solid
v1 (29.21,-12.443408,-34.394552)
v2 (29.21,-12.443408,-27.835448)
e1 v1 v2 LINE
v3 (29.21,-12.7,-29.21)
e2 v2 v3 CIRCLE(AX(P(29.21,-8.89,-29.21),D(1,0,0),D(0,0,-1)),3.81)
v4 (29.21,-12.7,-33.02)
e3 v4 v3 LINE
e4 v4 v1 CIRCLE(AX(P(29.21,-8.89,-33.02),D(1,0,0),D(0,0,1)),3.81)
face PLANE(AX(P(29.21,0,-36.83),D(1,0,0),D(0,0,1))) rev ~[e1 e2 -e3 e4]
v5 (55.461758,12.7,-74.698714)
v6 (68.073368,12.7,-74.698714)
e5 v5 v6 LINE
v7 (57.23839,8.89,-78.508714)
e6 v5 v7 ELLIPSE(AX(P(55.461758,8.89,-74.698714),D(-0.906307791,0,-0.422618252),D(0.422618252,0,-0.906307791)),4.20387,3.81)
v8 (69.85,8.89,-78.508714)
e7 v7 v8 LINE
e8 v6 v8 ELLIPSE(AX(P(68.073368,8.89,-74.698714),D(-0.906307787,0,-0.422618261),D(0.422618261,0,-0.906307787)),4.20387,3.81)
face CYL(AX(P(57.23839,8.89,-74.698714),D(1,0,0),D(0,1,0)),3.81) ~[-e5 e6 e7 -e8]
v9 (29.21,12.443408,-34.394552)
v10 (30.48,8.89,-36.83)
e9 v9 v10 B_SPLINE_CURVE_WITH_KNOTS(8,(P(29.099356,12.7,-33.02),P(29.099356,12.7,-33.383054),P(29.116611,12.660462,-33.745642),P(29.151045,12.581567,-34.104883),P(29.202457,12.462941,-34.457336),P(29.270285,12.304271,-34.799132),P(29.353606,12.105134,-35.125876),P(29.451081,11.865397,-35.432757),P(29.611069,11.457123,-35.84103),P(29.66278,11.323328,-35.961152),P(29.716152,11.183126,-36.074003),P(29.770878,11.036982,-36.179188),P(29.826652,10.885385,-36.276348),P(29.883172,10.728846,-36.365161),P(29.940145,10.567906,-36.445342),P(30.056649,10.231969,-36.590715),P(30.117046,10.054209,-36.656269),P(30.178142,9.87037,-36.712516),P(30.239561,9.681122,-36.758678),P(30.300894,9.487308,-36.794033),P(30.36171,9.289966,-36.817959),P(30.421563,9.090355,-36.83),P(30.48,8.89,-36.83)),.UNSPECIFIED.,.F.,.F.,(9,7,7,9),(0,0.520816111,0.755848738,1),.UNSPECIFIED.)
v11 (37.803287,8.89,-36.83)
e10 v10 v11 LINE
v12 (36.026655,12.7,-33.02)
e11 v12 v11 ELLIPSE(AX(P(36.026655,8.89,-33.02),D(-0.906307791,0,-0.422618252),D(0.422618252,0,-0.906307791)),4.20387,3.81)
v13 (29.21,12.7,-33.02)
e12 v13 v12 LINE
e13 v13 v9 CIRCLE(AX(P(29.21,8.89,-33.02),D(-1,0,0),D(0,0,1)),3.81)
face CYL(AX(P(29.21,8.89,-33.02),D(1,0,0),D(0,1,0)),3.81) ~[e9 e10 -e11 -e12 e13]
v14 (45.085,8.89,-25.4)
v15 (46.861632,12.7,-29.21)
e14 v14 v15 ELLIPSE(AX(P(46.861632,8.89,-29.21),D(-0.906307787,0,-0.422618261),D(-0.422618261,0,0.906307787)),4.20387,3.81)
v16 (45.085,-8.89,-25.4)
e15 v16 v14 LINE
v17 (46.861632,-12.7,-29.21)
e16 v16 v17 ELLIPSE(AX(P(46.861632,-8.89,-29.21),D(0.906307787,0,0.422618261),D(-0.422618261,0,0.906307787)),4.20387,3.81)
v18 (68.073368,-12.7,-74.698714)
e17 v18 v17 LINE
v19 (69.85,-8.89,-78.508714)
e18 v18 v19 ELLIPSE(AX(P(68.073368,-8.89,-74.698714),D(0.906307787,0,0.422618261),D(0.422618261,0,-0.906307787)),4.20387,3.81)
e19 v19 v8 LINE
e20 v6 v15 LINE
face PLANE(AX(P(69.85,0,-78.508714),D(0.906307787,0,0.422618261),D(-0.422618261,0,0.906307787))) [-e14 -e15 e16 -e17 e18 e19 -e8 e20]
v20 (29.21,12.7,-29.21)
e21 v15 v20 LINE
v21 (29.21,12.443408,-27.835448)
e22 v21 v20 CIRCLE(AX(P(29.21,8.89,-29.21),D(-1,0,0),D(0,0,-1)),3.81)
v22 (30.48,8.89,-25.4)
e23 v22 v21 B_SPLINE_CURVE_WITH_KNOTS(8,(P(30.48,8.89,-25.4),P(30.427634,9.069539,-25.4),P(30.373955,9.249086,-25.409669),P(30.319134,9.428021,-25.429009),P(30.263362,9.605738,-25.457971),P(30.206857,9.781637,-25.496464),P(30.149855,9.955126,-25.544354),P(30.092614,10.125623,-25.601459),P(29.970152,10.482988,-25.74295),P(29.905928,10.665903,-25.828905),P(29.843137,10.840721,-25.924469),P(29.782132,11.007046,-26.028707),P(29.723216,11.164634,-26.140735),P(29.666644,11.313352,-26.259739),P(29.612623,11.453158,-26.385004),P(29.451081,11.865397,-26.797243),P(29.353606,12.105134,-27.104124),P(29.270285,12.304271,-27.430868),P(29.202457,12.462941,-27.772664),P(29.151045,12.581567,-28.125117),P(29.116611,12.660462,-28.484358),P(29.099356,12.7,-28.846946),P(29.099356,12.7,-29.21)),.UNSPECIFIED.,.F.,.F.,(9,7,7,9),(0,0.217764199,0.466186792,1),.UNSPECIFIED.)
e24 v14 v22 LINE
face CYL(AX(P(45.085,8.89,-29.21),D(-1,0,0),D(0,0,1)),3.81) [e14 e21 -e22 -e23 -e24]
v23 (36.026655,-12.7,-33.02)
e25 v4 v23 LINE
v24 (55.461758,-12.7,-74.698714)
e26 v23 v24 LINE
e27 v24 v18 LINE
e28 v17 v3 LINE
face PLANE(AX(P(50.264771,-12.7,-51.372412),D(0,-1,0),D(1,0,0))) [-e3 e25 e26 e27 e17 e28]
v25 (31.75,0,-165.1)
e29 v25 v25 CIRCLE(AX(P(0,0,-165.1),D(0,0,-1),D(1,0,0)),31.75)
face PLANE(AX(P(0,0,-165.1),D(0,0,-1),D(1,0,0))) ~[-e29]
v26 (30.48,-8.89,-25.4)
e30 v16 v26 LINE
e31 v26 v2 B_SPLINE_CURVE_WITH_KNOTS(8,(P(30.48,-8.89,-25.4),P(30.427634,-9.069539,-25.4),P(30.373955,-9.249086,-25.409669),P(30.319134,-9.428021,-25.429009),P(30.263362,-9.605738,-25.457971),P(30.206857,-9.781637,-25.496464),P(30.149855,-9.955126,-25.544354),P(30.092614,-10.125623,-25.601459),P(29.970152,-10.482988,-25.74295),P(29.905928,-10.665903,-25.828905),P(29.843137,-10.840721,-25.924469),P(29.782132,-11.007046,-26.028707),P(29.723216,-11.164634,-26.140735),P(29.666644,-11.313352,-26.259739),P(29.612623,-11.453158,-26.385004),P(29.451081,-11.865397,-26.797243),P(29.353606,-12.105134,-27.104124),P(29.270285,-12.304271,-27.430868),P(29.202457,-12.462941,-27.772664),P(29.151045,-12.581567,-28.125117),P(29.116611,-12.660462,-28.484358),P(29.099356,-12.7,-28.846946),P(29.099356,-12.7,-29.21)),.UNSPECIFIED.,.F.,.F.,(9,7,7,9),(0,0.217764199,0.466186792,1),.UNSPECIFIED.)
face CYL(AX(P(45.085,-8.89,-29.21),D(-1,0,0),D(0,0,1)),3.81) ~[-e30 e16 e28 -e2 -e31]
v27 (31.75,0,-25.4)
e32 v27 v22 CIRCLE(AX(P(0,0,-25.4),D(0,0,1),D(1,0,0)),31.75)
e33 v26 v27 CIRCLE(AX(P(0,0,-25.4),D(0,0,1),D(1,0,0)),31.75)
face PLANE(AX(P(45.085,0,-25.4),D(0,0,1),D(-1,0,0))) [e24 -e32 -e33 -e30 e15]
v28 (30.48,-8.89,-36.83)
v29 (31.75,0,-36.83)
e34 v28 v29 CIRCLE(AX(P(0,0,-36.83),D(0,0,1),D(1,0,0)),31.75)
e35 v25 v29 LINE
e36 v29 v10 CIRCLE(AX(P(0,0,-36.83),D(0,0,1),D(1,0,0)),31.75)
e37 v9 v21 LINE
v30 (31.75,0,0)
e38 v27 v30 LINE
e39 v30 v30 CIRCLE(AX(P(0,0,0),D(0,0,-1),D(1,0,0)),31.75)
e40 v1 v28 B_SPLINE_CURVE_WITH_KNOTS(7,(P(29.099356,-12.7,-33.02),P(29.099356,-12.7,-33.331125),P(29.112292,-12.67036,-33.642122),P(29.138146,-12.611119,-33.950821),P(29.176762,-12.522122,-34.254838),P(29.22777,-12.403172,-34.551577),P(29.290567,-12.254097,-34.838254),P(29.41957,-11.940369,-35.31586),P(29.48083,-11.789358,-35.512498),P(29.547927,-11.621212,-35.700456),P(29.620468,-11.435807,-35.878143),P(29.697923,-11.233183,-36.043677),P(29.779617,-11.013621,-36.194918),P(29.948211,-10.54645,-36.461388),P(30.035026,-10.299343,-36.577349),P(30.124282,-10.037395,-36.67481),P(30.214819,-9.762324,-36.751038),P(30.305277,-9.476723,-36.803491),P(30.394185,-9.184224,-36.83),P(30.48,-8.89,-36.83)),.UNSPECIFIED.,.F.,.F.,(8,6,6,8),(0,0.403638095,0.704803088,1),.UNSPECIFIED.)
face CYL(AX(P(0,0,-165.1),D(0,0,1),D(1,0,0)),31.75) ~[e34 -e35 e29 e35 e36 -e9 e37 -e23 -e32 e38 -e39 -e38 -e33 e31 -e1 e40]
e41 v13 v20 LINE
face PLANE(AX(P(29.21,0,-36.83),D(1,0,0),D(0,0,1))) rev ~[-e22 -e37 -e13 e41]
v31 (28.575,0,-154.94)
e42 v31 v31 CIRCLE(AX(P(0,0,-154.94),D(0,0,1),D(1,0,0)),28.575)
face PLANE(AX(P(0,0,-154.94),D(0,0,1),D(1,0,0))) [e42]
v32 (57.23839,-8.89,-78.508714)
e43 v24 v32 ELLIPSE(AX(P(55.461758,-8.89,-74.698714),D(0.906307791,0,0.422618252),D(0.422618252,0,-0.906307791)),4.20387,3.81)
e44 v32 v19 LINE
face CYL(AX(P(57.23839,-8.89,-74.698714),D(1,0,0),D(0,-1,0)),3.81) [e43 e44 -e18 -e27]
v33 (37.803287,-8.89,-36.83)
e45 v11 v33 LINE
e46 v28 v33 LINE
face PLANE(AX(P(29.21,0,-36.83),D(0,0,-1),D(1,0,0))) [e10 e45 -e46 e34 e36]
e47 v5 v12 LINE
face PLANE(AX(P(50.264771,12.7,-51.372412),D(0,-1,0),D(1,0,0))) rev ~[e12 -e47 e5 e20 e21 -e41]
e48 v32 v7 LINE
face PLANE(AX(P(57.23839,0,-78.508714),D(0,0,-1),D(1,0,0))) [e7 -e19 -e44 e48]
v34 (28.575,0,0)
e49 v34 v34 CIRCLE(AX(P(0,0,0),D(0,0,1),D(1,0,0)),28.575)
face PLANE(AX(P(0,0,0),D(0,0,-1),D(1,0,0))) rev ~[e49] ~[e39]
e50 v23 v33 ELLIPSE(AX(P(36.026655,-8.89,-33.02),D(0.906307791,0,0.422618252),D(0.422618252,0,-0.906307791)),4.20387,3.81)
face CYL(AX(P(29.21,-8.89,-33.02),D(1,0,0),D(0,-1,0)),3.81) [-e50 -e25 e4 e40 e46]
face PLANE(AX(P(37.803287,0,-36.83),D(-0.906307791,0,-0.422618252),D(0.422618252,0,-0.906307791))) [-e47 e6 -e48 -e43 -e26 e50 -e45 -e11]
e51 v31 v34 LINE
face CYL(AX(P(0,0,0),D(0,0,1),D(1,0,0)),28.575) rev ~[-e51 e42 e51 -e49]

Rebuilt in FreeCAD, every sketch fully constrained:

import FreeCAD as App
import Part
import Sketcher

V = App.Vector
Q = App.Units.Quantity


def edges_at(feature, points):
    """Names of the edges that pass closest to the given points."""
    edges = feature.Shape.Edges
    near = lambda p: min(range(len(edges)), key=lambda i: edges[i].distToShape(Part.Vertex(*p))[0])
    return sorted({f"Edge{near(p) + 1}" for p in points})

doc = App.newDocument("Part")
body = doc.addObject("PartDesign::Body", "Body")

# Sketch on XZ plane
sketch1 = body.newObject("Sketcher::SketchObject", "Sketch")
sketch1.AttachmentSupport = (doc.getObject("XZ_Plane"), [""])
sketch1.MapMode = "FlatFace"
sketch1.addGeometry([
    Part.LineSegment(V(31.75, 0, 0), V(0, 0, 0)),
    Part.LineSegment(V(0, 0, 0), V(0, -165.1, 0)),
    Part.LineSegment(V(0, -165.1, 0), V(31.75, -165.1, 0)),
    Part.LineSegment(V(31.75, -165.1, 0), V(31.75, 0, 0)),
], False)
sketch1.addConstraint([
    Sketcher.Constraint("Coincident", 0, 2, 1, 1),
    Sketcher.Constraint("Coincident", 1, 2, 2, 1),
    Sketcher.Constraint("Coincident", 2, 2, 3, 1),
    Sketcher.Constraint("Coincident", 3, 2, 0, 1),
    Sketcher.Constraint("Horizontal", 0),
    Sketcher.Constraint("Vertical", 1),
    Sketcher.Constraint("Horizontal", 2),
    Sketcher.Constraint("Vertical", 3),
    Sketcher.Constraint("Coincident", 0, 2, -1, 1),
    Sketcher.Constraint("DistanceY", 1, 2, 1, 1, Q("6.5 in")),
    Sketcher.Constraint("DistanceX", 0, 2, 0, 1, Q("1.25 in")),
])
revolution = body.newObject("PartDesign::Revolution", "Revolution")
revolution.Profile = sketch1
revolution.ReferenceAxis = (sketch1, ["V_Axis"])
revolution.Angle = 360

# Sketch on XZ plane
sketch2 = body.newObject("Sketcher::SketchObject", "Sketch001")
sketch2.AttachmentSupport = (doc.getObject("XZ_Plane"), [""])
sketch2.MapMode = "FlatFace"
sketch2.addGeometry([
    Part.LineSegment(V(45.085, -25.4, 0), V(29.21, -25.4, 0)),  # 0
    Part.LineSegment(V(29.21, -25.4, 0), V(29.21, -36.83, 0)),  # 1
    Part.LineSegment(V(29.21, -36.83, 0), V(37.803287, -36.83, 0)),  # 2
    Part.LineSegment(V(37.803287, -36.83, 0), V(57.23839, -78.508714, 0)),  # 3
    Part.LineSegment(V(57.23839, -78.508714, 0), V(69.85, -78.508714, 0)),  # 4
    Part.LineSegment(V(69.85, -78.508714, 0), V(45.085, -25.4, 0)),  # 5
], False)
sketch2.addConstraint([
    Sketcher.Constraint("Coincident", 0, 2, 1, 1),
    Sketcher.Constraint("Coincident", 1, 2, 2, 1),
    Sketcher.Constraint("Coincident", 2, 2, 3, 1),
    Sketcher.Constraint("Coincident", 3, 2, 4, 1),
    Sketcher.Constraint("Coincident", 4, 2, 5, 1),
    Sketcher.Constraint("Coincident", 5, 2, 0, 1),
    Sketcher.Constraint("Horizontal", 0),
    Sketcher.Constraint("Vertical", 1),
    Sketcher.Constraint("Horizontal", 2),
    Sketcher.Constraint("Horizontal", 4),
    Sketcher.Constraint("Parallel", 3, 5),
    Sketcher.Constraint("DistanceY", 0, 2, -1, 1, Q("1 in")),
    Sketcher.Constraint("Angle", 3, Q("-65.000001 deg")),
    Sketcher.Constraint("DistanceY", 1, 2, 1, 1, Q("0.45 in")),
    Sketcher.Constraint("DistanceX", 1, 2, 4, 2, Q("1.6 in")),
    Sketcher.Constraint("DistanceX", 0, 2, 0, 1, Q("0.625 in")),
    Sketcher.Constraint("DistanceX", -1, 1, 0, 2, Q("1.15 in")),
    Sketcher.Constraint("DistanceX", 4, 1, 4, 2, Q("12.61161 mm")),
])
pad1 = body.newObject("PartDesign::Pad", "Pad")
pad1.Profile = sketch2
pad1.Length = Q("1 in")
pad1.Midplane = True
doc.recompute()

fillet = body.newObject("PartDesign::Fillet", "Fillet")
fillet.Base = (pad1, edges_at(pad1, [
    (37.148, -12.7, -25.4),
    (37.148, 12.7, -25.4),
    (33.507, 12.7, -36.83),
    (33.507, -12.7, -36.83),
    (63.544, -12.7, -78.509),
    (63.544, 12.7, -78.509),
]))
fillet.Radius = Q("0.15 in")

# Sketch on XY plane
sketch3 = body.newObject("Sketcher::SketchObject", "Sketch002")
sketch3.AttachmentSupport = (doc.getObject("XY_Plane"), [""])
sketch3.MapMode = "FlatFace"
sketch3.addGeometry(Part.Circle(V(0, 0, 0), V(0, 0, 1), 28.575), False)
sketch3.addConstraint([
    Sketcher.Constraint("Coincident", 0, 3, -1, 1),
    Sketcher.Constraint("Diameter", 0, Q("2.25 in")),
])
pocket1 = body.newObject("PartDesign::Pocket", "Pocket")
pocket1.Profile = sketch3
pocket1.Length = Q("3 in")

# Sketch on XY plane
sketch4 = body.newObject("Sketcher::SketchObject", "Sketch003")
sketch4.AttachmentSupport = (doc.getObject("XY_Plane"), [""])
sketch4.MapMode = "FlatFace"
sketch4.AttachmentOffset = App.Placement(V(0, 0, -3 * 25.4), App.Rotation())
sketch4.addGeometry(Part.Circle(V(0, 0, 0), V(0, 0, 1), 28.575), False)
sketch4.addConstraint([
    Sketcher.Constraint("Coincident", 0, 3, -1, 1),
    Sketcher.Constraint("Diameter", 0, Q("2.25 in")),
])
pocket2 = body.newObject("PartDesign::Pocket", "Pocket001")
pocket2.Profile = sketch4
pocket2.Length = Q("3.1 in")

doc.recompute()
